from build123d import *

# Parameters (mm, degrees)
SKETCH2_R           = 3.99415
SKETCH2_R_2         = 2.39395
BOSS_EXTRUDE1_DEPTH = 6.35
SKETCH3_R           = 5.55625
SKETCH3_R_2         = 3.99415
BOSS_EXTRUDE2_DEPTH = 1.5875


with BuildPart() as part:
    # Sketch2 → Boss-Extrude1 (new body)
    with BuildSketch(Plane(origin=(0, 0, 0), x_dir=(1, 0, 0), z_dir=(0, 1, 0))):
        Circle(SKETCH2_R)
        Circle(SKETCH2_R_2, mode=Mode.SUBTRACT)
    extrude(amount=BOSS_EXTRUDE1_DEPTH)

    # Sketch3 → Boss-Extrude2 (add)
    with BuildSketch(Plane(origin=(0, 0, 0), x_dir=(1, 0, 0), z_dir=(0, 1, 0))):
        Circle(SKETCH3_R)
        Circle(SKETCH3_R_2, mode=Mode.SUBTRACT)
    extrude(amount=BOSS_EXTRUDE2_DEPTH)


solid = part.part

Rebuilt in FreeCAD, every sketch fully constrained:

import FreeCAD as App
import Part
import Sketcher

V = App.Vector
Q = App.Units.Quantity

doc = App.newDocument("Part")
params = doc.addObject("Spreadsheet::Sheet", "Params")
for row, (alias, value) in enumerate([
    ("pad1_length", "0.25 in"),
    ("sketch2_diameter", "0.4375 in"),
    ("pad2_length", "0.0625 in"),
], start=1):
    params.set(f"A{row}", alias)
    params.set(f"B{row}", "=" + value)
    params.setAlias(f"B{row}", alias)

body = doc.addObject("PartDesign::Body", "Body")

sketch1 = body.newObject("Sketcher::SketchObject", "Sketch")
sketch1.AttachmentSupport = (doc.getObject("XZ_Plane"), [""])
sketch1.MapMode = "FlatFace"
sketch1.addGeometry(Part.Circle(V(0, 0, 0), V(0, 0, 1), 4), False)
sketch1.addGeometry(Part.Circle(V(0, 0, 0), V(0, 0, 1), 2.4), False)
sketch1.addConstraint(Sketcher.Constraint("Coincident", 0, 3, -1, 1))
sketch1.addConstraint(Sketcher.Constraint("Coincident", 1, 3, -1, 1))
sketch1.addConstraint(Sketcher.Constraint("Diameter", 0, Q("0.3145 in")))
sketch1.addConstraint(Sketcher.Constraint("Diameter", 1, Q("0.1885 in")))
pad1 = body.newObject("PartDesign::Pad", "Pad")
pad1.Profile = sketch1
pad1.setExpression("Length", "Params.pad1_length")
pad1.Reversed = True

sketch2 = body.newObject("Sketcher::SketchObject", "Sketch001")
sketch2.AttachmentSupport = (doc.getObject("XZ_Plane"), [""])
sketch2.MapMode = "FlatFace"
sketch2.addGeometry(Part.Circle(V(0, 0, 0), V(0, 0, 1), 5.6), False)
sketch2.addGeometry(Part.Circle(V(0, 0, 0), V(0, 0, 1), 4), False)
sketch2.addConstraint(Sketcher.Constraint("Coincident", 0, 3, -1, 1))
sketch2.addConstraint(Sketcher.Constraint("Coincident", 1, 3, -1, 1))
sketch2.addConstraint(Sketcher.Constraint("Diameter", 0, Q("0.4375 in")))
sketch2.addConstraint(Sketcher.Constraint("Diameter", 1, Q("0.3145 in")))
sketch2.setExpression("Constraints[2]", "Params.sketch2_diameter")
pad2 = body.newObject("PartDesign::Pad", "Pad001")
pad2.Profile = sketch2
pad2.setExpression("Length", "Params.pad2_length")
pad2.Reversed = True

doc.recompute()
